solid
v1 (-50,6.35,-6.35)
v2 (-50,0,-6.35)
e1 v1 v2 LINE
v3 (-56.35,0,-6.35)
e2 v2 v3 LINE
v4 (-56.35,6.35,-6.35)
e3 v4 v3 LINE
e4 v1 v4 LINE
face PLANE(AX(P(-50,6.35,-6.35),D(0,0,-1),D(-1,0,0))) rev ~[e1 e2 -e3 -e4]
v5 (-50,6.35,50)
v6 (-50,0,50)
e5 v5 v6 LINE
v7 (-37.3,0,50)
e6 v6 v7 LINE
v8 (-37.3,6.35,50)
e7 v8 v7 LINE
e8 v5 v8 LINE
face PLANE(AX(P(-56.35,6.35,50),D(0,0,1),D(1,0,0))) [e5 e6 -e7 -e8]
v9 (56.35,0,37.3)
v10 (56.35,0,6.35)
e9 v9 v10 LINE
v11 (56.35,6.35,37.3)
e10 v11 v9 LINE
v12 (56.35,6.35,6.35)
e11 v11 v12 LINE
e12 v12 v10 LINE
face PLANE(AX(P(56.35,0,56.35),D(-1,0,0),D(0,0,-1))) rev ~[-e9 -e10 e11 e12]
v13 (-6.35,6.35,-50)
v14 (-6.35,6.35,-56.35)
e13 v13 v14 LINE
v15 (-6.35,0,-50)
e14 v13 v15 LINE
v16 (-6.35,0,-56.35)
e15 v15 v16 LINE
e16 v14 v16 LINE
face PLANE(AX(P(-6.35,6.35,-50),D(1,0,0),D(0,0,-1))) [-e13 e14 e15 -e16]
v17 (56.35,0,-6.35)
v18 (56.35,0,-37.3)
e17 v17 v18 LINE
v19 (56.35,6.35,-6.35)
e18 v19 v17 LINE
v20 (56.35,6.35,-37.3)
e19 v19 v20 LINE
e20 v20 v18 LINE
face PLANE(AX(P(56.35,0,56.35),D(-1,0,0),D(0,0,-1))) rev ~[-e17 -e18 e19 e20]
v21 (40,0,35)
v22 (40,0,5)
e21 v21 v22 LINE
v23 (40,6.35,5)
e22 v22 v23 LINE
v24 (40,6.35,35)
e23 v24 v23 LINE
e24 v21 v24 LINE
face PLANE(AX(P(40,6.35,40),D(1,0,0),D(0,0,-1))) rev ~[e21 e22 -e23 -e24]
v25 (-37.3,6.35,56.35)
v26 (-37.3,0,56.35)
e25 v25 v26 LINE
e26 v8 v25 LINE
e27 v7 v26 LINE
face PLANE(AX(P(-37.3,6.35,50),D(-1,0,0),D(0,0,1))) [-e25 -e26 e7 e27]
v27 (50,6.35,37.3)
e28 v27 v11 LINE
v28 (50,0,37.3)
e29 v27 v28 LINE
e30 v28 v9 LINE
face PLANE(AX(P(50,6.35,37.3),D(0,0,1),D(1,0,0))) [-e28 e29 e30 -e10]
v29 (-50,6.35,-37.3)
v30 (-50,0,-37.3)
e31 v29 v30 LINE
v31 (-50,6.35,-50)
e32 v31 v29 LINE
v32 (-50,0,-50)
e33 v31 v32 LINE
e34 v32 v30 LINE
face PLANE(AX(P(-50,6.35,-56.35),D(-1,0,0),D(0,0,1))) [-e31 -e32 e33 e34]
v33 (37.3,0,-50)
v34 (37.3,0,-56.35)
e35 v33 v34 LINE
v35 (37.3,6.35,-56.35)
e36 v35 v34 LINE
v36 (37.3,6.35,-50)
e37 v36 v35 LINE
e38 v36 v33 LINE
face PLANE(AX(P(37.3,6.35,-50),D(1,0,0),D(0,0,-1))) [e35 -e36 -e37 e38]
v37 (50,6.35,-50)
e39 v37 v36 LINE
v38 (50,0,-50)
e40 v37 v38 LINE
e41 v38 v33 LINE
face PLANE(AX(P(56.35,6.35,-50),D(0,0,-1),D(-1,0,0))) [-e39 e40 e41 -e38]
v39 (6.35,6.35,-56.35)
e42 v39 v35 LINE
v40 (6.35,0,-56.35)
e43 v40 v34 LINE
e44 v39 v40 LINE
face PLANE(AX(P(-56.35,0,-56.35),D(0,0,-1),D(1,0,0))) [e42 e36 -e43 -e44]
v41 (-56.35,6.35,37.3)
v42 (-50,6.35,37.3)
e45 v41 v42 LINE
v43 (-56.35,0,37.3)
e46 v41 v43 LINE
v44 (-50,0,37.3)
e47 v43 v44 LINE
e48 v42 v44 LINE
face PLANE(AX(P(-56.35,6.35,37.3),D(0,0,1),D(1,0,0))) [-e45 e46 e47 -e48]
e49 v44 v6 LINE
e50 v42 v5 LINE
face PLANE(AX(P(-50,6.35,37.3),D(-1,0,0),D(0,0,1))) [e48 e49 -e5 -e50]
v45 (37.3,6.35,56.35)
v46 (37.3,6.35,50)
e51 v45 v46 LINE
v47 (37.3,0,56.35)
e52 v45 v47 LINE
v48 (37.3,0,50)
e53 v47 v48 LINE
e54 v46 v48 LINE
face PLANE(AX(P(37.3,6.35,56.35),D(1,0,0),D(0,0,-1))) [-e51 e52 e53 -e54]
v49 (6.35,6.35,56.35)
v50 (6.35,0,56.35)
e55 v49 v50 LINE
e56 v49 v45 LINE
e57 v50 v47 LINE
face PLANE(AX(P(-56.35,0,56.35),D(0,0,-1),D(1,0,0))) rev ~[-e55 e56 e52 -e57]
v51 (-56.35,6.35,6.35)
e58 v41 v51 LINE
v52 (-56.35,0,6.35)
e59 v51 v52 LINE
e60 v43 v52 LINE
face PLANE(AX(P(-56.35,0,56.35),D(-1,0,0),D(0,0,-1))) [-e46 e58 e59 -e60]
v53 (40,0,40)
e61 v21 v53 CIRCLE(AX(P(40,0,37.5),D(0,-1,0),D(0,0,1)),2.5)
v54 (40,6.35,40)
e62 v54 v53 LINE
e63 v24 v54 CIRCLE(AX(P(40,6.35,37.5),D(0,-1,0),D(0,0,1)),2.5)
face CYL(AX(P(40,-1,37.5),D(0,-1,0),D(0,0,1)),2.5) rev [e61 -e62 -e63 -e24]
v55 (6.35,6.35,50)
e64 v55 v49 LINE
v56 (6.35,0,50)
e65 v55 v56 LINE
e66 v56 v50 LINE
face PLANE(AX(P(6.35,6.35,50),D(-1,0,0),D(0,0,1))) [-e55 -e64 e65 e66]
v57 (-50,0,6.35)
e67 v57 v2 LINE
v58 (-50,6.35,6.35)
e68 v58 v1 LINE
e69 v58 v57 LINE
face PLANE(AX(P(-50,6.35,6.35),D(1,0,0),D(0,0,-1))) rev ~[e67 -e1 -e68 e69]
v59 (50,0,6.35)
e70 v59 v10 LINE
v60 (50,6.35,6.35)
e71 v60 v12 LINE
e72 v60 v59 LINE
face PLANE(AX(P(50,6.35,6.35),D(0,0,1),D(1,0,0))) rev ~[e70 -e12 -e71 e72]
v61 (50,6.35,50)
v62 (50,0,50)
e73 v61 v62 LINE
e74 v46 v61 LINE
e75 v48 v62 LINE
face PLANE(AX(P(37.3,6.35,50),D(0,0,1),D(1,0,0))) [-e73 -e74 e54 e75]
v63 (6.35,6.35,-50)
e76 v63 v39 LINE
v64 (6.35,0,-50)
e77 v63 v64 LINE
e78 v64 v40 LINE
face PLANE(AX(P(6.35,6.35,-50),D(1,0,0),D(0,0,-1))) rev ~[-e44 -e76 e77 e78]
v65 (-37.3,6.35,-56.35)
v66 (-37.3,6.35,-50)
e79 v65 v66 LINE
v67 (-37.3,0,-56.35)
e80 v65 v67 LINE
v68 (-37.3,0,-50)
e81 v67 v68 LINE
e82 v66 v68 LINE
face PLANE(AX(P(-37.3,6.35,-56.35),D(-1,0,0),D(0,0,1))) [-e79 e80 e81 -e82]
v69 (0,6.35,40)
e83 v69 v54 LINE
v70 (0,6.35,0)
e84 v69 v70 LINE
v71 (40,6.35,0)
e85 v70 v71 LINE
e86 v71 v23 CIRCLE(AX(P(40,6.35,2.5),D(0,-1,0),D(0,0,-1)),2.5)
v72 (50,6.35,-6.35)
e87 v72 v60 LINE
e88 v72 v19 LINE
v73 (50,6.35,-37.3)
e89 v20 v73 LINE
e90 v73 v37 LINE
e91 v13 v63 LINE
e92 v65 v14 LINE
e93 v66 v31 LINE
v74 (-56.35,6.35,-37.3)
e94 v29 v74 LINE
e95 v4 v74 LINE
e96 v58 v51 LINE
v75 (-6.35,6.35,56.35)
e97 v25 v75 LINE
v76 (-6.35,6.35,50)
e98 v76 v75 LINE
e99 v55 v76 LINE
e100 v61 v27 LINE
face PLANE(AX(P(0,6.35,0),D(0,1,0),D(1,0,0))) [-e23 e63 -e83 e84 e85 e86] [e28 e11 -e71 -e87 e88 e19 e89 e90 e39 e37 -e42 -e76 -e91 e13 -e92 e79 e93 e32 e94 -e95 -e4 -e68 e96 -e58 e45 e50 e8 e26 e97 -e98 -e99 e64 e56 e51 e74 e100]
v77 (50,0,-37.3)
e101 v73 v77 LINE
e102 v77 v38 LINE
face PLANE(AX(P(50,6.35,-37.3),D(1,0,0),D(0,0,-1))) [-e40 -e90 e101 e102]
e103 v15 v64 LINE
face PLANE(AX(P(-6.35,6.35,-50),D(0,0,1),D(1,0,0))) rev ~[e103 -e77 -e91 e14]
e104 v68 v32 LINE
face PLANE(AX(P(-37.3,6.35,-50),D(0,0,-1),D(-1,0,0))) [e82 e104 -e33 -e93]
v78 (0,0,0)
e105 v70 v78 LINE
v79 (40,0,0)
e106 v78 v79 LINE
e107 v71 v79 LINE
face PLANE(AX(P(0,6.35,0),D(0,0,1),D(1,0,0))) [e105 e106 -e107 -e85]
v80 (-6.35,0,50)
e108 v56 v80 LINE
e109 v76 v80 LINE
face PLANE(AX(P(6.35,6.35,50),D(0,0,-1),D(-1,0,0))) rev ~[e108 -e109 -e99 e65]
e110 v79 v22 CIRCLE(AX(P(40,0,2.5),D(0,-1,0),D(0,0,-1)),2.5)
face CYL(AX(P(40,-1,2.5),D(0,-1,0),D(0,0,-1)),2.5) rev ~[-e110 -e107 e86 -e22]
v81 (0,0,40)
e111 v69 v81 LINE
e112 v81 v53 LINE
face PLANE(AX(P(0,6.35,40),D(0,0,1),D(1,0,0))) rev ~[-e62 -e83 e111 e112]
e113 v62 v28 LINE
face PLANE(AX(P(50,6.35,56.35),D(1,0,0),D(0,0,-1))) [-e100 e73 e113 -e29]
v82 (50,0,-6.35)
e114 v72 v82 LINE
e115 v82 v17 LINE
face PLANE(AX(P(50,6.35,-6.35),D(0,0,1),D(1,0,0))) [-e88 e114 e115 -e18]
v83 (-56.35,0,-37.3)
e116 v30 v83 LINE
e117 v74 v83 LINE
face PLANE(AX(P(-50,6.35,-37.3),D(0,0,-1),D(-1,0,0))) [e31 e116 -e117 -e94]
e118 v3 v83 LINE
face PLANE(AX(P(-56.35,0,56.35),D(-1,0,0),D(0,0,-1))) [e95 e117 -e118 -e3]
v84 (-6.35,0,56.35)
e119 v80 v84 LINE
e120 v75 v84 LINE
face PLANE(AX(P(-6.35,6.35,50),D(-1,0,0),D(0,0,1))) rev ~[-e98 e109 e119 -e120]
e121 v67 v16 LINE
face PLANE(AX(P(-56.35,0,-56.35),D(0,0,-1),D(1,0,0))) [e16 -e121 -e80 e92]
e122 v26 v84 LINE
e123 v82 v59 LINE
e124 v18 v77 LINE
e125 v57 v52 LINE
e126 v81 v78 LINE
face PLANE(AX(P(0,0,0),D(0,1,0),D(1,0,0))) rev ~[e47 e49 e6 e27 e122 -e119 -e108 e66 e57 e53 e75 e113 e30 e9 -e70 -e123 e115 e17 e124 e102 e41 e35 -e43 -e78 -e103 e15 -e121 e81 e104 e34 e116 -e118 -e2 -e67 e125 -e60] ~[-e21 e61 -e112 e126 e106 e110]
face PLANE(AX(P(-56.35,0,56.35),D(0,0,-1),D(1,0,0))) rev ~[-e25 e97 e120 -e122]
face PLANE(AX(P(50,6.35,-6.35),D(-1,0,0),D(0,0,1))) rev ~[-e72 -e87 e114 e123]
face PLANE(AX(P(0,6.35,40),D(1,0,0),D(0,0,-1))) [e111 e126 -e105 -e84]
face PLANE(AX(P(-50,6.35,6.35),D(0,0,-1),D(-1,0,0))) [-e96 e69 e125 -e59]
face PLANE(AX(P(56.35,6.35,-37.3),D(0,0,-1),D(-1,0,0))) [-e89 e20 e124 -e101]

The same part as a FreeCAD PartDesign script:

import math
import FreeCAD as App
import Part
import Sketcher
from FreeCAD import Vector


def add_polygon(sketch, points):
    """Adds a closed chain of lines whose ends are joined by coincident constraints."""
    first, n = sketch.GeometryCount, len(points)
    for a, b in zip(points, points[1:] + points[:1]):
        sketch.addGeometry(Part.LineSegment(App.Vector(*a, 0), App.Vector(*b, 0)), False)
    for i in range(n):
        sketch.addConstraint(Sketcher.Constraint("Coincident", first + i, 2, first + (i + 1) % n, 1))

doc = App.newDocument("Part")
params = doc.addObject("Spreadsheet::Sheet", "Params")
for row, (alias, value) in enumerate([
    ("sketch1_width", "112.7 mm"),
    ("pad1_length", "6.35 mm"),
    ("sketch2_width", "12.7 mm"),
    ("sketch2_height", "6.35 mm"),
    ("sketch3_width", "6.35 mm"),
    ("sketch3_height", "19.05 mm"),
    ("sketch4_width", "12.7 mm"),
    ("sketch4_height", "6.35 mm"),
    ("sketch5_width", "40 mm"),
    ("sketch6_radius", "2.5 mm"),
    ("pocket5_length", "8.35 mm"),
], start=1):
    params.set(f"A{row}", alias)
    params.set(f"B{row}", "=" + value)
    params.setAlias(f"B{row}", alias)

body = doc.addObject("PartDesign::Body", "Body")

# Sketch on XZ plane
sketch1 = body.newObject("Sketcher::SketchObject", "Sketch")
sketch1.AttachmentSupport = (doc.getObject("XZ_Plane"), [""])
sketch1.MapMode = "FlatFace"
add_polygon(sketch1, [(-56, -56), (-56, 56), (56, 56), (56, -56)])  # lines 0-3
sketch1.addConstraint([
    Sketcher.Constraint("Vertical", 0),
    Sketcher.Constraint("Horizontal", 1),
    Sketcher.Constraint("Vertical", 2),
    Sketcher.Constraint("Horizontal", 3),
    Sketcher.Constraint("Symmetric", 0, 2, 2, 2, -1, 1),
    Sketcher.Constraint("Equal", 3, 0),
    Sketcher.Constraint("DistanceX", 1, 1, 1, 2, 112.7),
])
sketch1.setExpression("Constraints[10]", "Params.sketch1_width")
pad1 = body.newObject("PartDesign::Pad", "Pad")
pad1.Profile = sketch1
pad1.setExpression("Length", "Params.pad1_length")
pad1.Reversed = True

# Sketch on XZ plane
sketch2 = body.newObject("Sketcher::SketchObject", "Sketch001")
sketch2.AttachmentSupport = (doc.getObject("XZ_Plane"), [""])
sketch2.MapMode = "FlatFace"
sketch2.AttachmentOffset = App.Placement(Vector(0, 0, -6.35), App.Rotation())
add_polygon(sketch2, [(-6, -56), (-6, -50), (6, -50), (6, -56)])  # lines 0-3
sketch2.addConstraint([
    Sketcher.Constraint("Vertical", 0),
    Sketcher.Constraint("Horizontal", 1),
    Sketcher.Constraint("Vertical", 2),
    Sketcher.Constraint("Horizontal", 3),
    Sketcher.Constraint("DistanceX", 1, 1, 1, 2, 12.7),
    Sketcher.Constraint("DistanceY", 0, 2, -1, 1, 50.0),
    Sketcher.Constraint("DistanceY", 0, 1, 0, 2, 6.35),
    Sketcher.Constraint("DistanceX", 0, 2, -1, 1, 6.35),
])
sketch2.setExpression("Constraints[8]", "Params.sketch2_width")
sketch2.setExpression("Constraints[10]", "Params.sketch2_height")
pocket1 = body.newObject("PartDesign::Pocket", "Pocket")
pocket1.Profile = sketch2
pocket1.Type = "ThroughAll"
pocket1.Reversed = True
doc.recompute()

polarpattern = body.newObject("PartDesign::PolarPattern", "PolarPattern")
polarpattern.Originals = [pocket1]
polarpattern.Axis = (doc.getObject("Y_Axis"), [""])
polarpattern.Angle = 360
polarpattern.Occurrences = 4
body.Tip = polarpattern

# Sketch on XZ plane
sketch3 = body.newObject("Sketcher::SketchObject", "Sketch002")
sketch3.AttachmentSupport = (doc.getObject("XZ_Plane"), [""])
sketch3.MapMode = "FlatFace"
sketch3.AttachmentOffset = App.Placement(Vector(0, 0, -6.35), App.Rotation())
add_polygon(sketch3, [(50, 37), (50, 56), (56, 56), (56, 37)])  # lines 0-3
sketch3.addConstraint([
    Sketcher.Constraint("Vertical", 0),
    Sketcher.Constraint("Horizontal", 1),
    Sketcher.Constraint("Vertical", 2),
    Sketcher.Constraint("Horizontal", 3),
    Sketcher.Constraint("DistanceX", -1, 1, 0, 2, 50.0),
    Sketcher.Constraint("DistanceX", 1, 1, 1, 2, 6.35),
    Sketcher.Constraint("DistanceY", 0, 1, 0, 2, 19.05),
    Sketcher.Constraint("DistanceY", -1, 1, 2, 2, 37.3),
])
sketch3.setExpression("Constraints[9]", "Params.sketch3_width")
sketch3.setExpression("Constraints[10]", "Params.sketch3_height")
pocket2 = body.newObject("PartDesign::Pocket", "Pocket001")
pocket2.Profile = sketch3
pocket2.Type = "ThroughAll"
pocket2.Reversed = True

# Sketch on XZ plane
sketch4 = body.newObject("Sketcher::SketchObject", "Sketch003")
sketch4.AttachmentSupport = (doc.getObject("XZ_Plane"), [""])
sketch4.MapMode = "FlatFace"
sketch4.AttachmentOffset = App.Placement(Vector(0, 0, -6.35), App.Rotation())
add_polygon(sketch4, [(37, 50), (37, 56), (50, 56), (50, 50)])  # lines 0-3
sketch4.addConstraint([
    Sketcher.Constraint("Vertical", 0),
    Sketcher.Constraint("Horizontal", 1),
    Sketcher.Constraint("Vertical", 2),
    Sketcher.Constraint("Horizontal", 3),
    Sketcher.Constraint("DistanceX", 1, 1, 1, 2, 12.7),
    Sketcher.Constraint("DistanceX", -1, 1, 1, 2, 50.0),
    Sketcher.Constraint("DistanceY", -1, 1, 2, 2, 50.0),
    Sketcher.Constraint("DistanceY", 0, 1, 0, 2, 6.35),
])
sketch4.setExpression("Constraints[8]", "Params.sketch4_width")
sketch4.setExpression("Constraints[11]", "Params.sketch4_height")
pocket3 = body.newObject("PartDesign::Pocket", "Pocket002")
pocket3.Profile = sketch4
pocket3.Type = "ThroughAll"
pocket3.Reversed = True
doc.recompute()

polarpattern2 = body.newObject("PartDesign::PolarPattern", "PolarPattern001")
polarpattern2.Originals = [pocket2]
polarpattern2.Axis = (doc.getObject("Y_Axis"), [""])
polarpattern2.Angle = 360
polarpattern2.Occurrences = 4
body.Tip = polarpattern2
doc.recompute()

polarpattern3 = body.newObject("PartDesign::PolarPattern", "PolarPattern002")
polarpattern3.Originals = [pocket3]
polarpattern3.Axis = (doc.getObject("Y_Axis"), [""])
polarpattern3.Angle = 360
polarpattern3.Occurrences = 4
body.Tip = polarpattern3

# Sketch on XZ plane
sketch5 = body.newObject("Sketcher::SketchObject", "Sketch004")
sketch5.AttachmentSupport = (doc.getObject("XZ_Plane"), [""])
sketch5.MapMode = "FlatFace"
sketch5.AttachmentOffset = App.Placement(Vector(0, 0, -6.35), App.Rotation())
add_polygon(sketch5, [(0, 0), (0, 40), (40, 40), (40, 0)])  # lines 0-3
sketch5.addConstraint([
    Sketcher.Constraint("Vertical", 0),
    Sketcher.Constraint("Horizontal", 1),
    Sketcher.Constraint("Vertical", 2),
    Sketcher.Constraint("Horizontal", 3),
    Sketcher.Constraint("Coincident", 3, 2, -1, 1),
    Sketcher.Constraint("Equal", 3, 0),
    Sketcher.Constraint("DistanceX", 1, 1, 1, 2, 40.0),
])
sketch5.setExpression("Constraints[10]", "Params.sketch5_width")
pocket4 = body.newObject("PartDesign::Pocket", "Pocket003")
pocket4.Profile = sketch5
pocket4.Type = "ThroughAll"
pocket4.Reversed = True

# Sketch on XZ plane
sketch6 = body.newObject("Sketcher::SketchObject", "Sketch005")
sketch6.AttachmentSupport = (doc.getObject("XZ_Plane"), [""])
sketch6.MapMode = "FlatFace"
sketch6.AttachmentOffset = App.Placement(Vector(0, 0, 1), App.Rotation())
sketch6.addGeometry([
    Part.LineSegment(Vector(40, 35, 0), Vector(40, 40, 0)),
    Part.ArcOfCircle(Part.Circle(Vector(40, 37.5, 0), Vector(0, 0, 1), 2.5), math.radians(-90), math.radians(90)),
], False)
sketch6.addConstraint([
    Sketcher.Constraint("Coincident", 0, 1, 1, 1),
    Sketcher.Constraint("Coincident", 1, 2, 0, 2),
    Sketcher.Constraint("Vertical", 0),
    Sketcher.Constraint("Vertical", 1, 3, 0, 1),
    Sketcher.Constraint("Radius", 1, 2.5),
    Sketcher.Constraint("DistanceX", -1, 1, 1, 3, 40.0),
    Sketcher.Constraint("DistanceY", -1, 1, 0, 1, 35.0),
])
sketch6.setExpression("Constraints[4]", "Params.sketch6_radius")
pocket5 = body.newObject("PartDesign::Pocket", "Pocket004")
pocket5.Profile = sketch6
pocket5.setExpression("Length", "Params.pocket5_length")
doc.recompute()

datumplane = body.newObject("PartDesign::Plane", "DatumPlane")
datumplane.AttachmentSupport = (doc.getObject("XY_Plane"), [""])
datumplane.MapMode = "FlatFace"
datumplane.AttachmentOffset = App.Placement(Vector(0, 0, 20), App.Rotation())
mirrored = body.newObject("PartDesign::Mirrored", "Mirrored")
mirrored.Originals = [pocket5]
mirrored.MirrorPlane = (datumplane, [""])
body.Tip = mirrored

doc.recompute()
